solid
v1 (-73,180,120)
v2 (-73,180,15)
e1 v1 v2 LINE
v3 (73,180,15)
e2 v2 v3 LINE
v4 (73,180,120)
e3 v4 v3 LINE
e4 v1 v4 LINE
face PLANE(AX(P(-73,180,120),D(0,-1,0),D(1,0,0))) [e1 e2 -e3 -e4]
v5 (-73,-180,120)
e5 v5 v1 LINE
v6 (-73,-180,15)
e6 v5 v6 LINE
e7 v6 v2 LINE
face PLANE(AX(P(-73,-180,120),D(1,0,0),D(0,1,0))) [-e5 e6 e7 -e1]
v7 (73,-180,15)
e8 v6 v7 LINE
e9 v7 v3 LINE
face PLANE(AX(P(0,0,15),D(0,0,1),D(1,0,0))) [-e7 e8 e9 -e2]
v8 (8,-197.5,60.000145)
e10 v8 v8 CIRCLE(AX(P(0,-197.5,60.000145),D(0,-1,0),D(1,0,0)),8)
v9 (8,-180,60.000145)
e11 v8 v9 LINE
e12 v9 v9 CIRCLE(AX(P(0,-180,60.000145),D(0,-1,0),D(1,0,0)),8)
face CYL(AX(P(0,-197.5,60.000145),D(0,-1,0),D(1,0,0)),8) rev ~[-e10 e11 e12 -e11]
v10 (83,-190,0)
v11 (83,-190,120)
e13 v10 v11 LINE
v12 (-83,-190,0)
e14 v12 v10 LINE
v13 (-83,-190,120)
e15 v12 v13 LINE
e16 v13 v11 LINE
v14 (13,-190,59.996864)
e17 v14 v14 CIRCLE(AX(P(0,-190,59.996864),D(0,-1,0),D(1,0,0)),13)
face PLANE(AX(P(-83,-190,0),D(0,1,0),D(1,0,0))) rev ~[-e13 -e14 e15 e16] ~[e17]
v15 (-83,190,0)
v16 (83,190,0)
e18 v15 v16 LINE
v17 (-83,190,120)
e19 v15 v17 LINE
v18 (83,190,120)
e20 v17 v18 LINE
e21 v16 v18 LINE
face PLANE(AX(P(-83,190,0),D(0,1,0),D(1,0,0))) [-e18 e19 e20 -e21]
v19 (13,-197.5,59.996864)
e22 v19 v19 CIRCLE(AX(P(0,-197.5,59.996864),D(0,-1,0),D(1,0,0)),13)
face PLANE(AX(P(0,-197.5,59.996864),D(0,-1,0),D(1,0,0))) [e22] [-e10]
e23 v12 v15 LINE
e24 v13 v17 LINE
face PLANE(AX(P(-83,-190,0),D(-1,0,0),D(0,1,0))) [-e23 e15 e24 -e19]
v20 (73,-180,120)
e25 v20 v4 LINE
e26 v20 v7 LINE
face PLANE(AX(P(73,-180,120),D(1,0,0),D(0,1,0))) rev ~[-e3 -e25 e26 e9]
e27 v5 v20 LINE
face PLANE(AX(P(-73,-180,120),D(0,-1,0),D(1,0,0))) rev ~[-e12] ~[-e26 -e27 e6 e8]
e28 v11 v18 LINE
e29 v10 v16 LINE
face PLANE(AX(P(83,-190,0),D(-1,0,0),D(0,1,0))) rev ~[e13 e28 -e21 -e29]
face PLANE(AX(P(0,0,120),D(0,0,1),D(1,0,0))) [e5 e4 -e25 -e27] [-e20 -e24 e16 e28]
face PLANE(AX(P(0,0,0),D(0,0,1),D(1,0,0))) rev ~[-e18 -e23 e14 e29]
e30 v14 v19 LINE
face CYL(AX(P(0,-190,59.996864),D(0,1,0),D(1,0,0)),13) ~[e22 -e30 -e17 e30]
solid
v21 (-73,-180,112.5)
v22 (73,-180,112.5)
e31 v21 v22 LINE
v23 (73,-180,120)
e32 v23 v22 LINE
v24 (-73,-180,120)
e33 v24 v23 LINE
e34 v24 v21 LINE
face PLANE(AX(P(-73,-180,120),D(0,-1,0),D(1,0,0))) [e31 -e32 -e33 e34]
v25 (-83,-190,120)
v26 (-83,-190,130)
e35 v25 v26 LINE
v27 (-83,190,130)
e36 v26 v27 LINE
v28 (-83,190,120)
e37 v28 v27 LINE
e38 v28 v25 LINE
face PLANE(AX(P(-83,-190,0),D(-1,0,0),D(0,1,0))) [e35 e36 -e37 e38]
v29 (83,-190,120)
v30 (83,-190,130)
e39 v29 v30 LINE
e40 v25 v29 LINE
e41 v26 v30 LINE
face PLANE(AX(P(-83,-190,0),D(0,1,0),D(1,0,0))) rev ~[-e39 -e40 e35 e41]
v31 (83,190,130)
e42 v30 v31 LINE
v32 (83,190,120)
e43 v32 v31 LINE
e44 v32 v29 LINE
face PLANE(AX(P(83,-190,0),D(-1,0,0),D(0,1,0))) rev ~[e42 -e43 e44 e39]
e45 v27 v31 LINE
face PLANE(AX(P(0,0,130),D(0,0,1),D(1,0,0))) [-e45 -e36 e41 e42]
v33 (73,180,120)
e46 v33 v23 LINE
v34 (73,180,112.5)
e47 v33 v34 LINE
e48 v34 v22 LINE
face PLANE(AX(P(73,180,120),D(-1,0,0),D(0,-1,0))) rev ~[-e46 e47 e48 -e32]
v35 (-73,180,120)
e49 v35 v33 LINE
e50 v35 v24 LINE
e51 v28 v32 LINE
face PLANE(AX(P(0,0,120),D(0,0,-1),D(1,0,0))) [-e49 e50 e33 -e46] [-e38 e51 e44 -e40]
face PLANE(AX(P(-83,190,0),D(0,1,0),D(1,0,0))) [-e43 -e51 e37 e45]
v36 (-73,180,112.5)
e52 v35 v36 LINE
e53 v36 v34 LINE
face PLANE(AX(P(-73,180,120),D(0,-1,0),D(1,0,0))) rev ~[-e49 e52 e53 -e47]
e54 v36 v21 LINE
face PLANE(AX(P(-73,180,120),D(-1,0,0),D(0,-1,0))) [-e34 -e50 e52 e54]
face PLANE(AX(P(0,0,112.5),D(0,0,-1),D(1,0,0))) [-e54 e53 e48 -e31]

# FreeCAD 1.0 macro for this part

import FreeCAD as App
import Part
import Sketcher

V = App.Vector


def add_polygon(sketch, points):
    """Adds a closed chain of lines whose ends are joined by coincident constraints."""
    first, n = sketch.GeometryCount, len(points)
    for a, b in zip(points, points[1:] + points[:1]):
        sketch.addGeometry(Part.LineSegment(App.Vector(*a, 0), App.Vector(*b, 0)), False)
    for i in range(n):
        sketch.addConstraint(Sketcher.Constraint("Coincident", first + i, 2, first + (i + 1) % n, 1))

doc = App.newDocument("Part")
params = doc.addObject("Spreadsheet::Sheet", "Params")
for row, (alias, value) in enumerate([
    ("sketch1_width", "166 mm"),
    ("sketch1_height", "380 mm"),
    ("pad1_length", "120 mm"),
    ("sketch2_width", "146 mm"),
    ("sketch2_height", "360 mm"),
    ("pocket1_length", "105 mm"),
    ("sketch3_diameter", "26 mm"),
    ("pad2_length", "7.5 mm"),
    ("sketch4_diameter", "16 mm"),
    ("pocket2_length", "17.5 mm"),
    ("sketch5_width", "166 mm"),
    ("sketch5_height", "380 mm"),
    ("pad3_length", "130 mm"),
    ("sketch6_width", "166 mm"),
    ("sketch6_height", "380 mm"),
    ("pocket3_length", "120 mm"),
    ("sketch7_width", "146 mm"),
    ("sketch7_height", "360 mm"),
    ("pad4_length", "7.5 mm"),
], start=1):
    params.set(f"A{row}", alias)
    params.set(f"B{row}", "=" + value)
    params.setAlias(f"B{row}", alias)

body = doc.addObject("PartDesign::Body", "Body")

# Sketch on XY plane
sketch1 = doc.addObject("Sketcher::SketchObject", "Sketch")
body.addObject(sketch1)
sketch1.AttachmentSupport = (doc.XY_Plane, [""])
sketch1.MapMode = "FlatFace"
add_polygon(sketch1, [(-83, 190), (-83, -190), (83, -190), (83, 190)])  # lines 0-3
sketch1.addConstraint([
    Sketcher.Constraint("Vertical", 0),
    Sketcher.Constraint("Horizontal", 1),
    Sketcher.Constraint("Vertical", 2),
    Sketcher.Constraint("Horizontal", 3),
    Sketcher.Constraint("Symmetric", 0, 2, 2, 2, -1, 1),
    Sketcher.Constraint("DistanceX", 1, 1, 1, 2, 166.0),
    Sketcher.Constraint("DistanceY", 0, 2, 0, 1, 380.0),
])
sketch1.setExpression("Constraints[9]", "Params.sketch1_width")
sketch1.setExpression("Constraints[10]", "Params.sketch1_height")
pad1 = doc.addObject("PartDesign::Pad", "Pad")
body.addObject(pad1)
pad1.Profile = sketch1
pad1.setExpression("Length", "Params.pad1_length")

# Sketch on XY plane
sketch2 = doc.addObject("Sketcher::SketchObject", "Sketch001")
body.addObject(sketch2)
sketch2.AttachmentSupport = (doc.XY_Plane, [""])
sketch2.MapMode = "FlatFace"
sketch2.AttachmentOffset = App.Placement(V(0, 0, 120), App.Rotation())
add_polygon(sketch2, [(-73, 180), (-73, -180), (73, -180), (73, 180)])  # lines 0-3
sketch2.addConstraint([
    Sketcher.Constraint("Vertical", 0),
    Sketcher.Constraint("Horizontal", 1),
    Sketcher.Constraint("Vertical", 2),
    Sketcher.Constraint("Horizontal", 3),
    Sketcher.Constraint("Symmetric", 0, 2, 2, 2, -1, 1),
    Sketcher.Constraint("DistanceX", 1, 1, 1, 2, 146.0),
    Sketcher.Constraint("DistanceY", 0, 2, 0, 1, 360.0),
])
sketch2.setExpression("Constraints[9]", "Params.sketch2_width")
sketch2.setExpression("Constraints[10]", "Params.sketch2_height")
pocket1 = doc.addObject("PartDesign::Pocket", "Pocket")
body.addObject(pocket1)
pocket1.Profile = sketch2
pocket1.setExpression("Length", "Params.pocket1_length")

# Sketch on XZ plane
sketch3 = doc.addObject("Sketcher::SketchObject", "Sketch002")
body.addObject(sketch3)
sketch3.AttachmentSupport = (doc.XZ_Plane, [""])
sketch3.MapMode = "FlatFace"
sketch3.AttachmentOffset = App.Placement(V(0, 0, 190), App.Rotation())
sketch3.addGeometry(Part.Circle(V(0, 59.996864, 0), V(0, 0, 1), 13), False)
sketch3.addConstraint([
    Sketcher.Constraint("PointOnObject", 0, 3, -2),
    Sketcher.Constraint("Diameter", 0, 26.0),
    Sketcher.Constraint("DistanceY", -1, 1, 0, 3, 59.996864),
])
sketch3.setExpression("Constraints[1]", "Params.sketch3_diameter")
pad2 = doc.addObject("PartDesign::Pad", "Pad001")
body.addObject(pad2)
pad2.Profile = sketch3
pad2.setExpression("Length", "Params.pad2_length")

# Sketch on XZ plane
sketch4 = doc.addObject("Sketcher::SketchObject", "Sketch003")
body.addObject(sketch4)
sketch4.AttachmentSupport = (doc.XZ_Plane, [""])
sketch4.MapMode = "FlatFace"
sketch4.AttachmentOffset = App.Placement(V(0, 0, 197.5), App.Rotation())
sketch4.addGeometry(Part.Circle(V(0, 60.000145, 0), V(0, 0, 1), 8), False)
sketch4.addConstraint([
    Sketcher.Constraint("PointOnObject", 0, 3, -2),
    Sketcher.Constraint("Diameter", 0, 16.0),
    Sketcher.Constraint("DistanceY", -1, 1, 0, 3, 60.000145),
])
sketch4.setExpression("Constraints[1]", "Params.sketch4_diameter")
pocket2 = doc.addObject("PartDesign::Pocket", "Pocket001")
body.addObject(pocket2)
pocket2.Profile = sketch4
pocket2.setExpression("Length", "Params.pocket2_length")
body2 = doc.addObject("PartDesign::Body", "Body001")

# Sketch on XY plane
sketch5 = doc.addObject("Sketcher::SketchObject", "Sketch004")
body2.addObject(sketch5)
sketch5.AttachmentSupport = (doc.getObject("XY_Plane001"), [""])
sketch5.MapMode = "FlatFace"
add_polygon(sketch5, [(-83, 190), (-83, -190), (83, -190), (83, 190)])  # lines 0-3
sketch5.addConstraint([
    Sketcher.Constraint("Vertical", 0),
    Sketcher.Constraint("Horizontal", 1),
    Sketcher.Constraint("Vertical", 2),
    Sketcher.Constraint("Horizontal", 3),
    Sketcher.Constraint("Symmetric", 0, 2, 2, 2, -1, 1),
    Sketcher.Constraint("DistanceX", 1, 1, 1, 2, 166.0),
    Sketcher.Constraint("DistanceY", 0, 2, 0, 1, 380.0),
])
sketch5.setExpression("Constraints[9]", "Params.sketch5_width")
sketch5.setExpression("Constraints[10]", "Params.sketch5_height")
pad3 = doc.addObject("PartDesign::Pad", "Pad002")
body2.addObject(pad3)
pad3.Profile = sketch5
pad3.setExpression("Length", "Params.pad3_length")

# Sketch on XY plane
sketch6 = doc.addObject("Sketcher::SketchObject", "Sketch005")
body2.addObject(sketch6)
sketch6.AttachmentSupport = (doc.getObject("XY_Plane001"), [""])
sketch6.MapMode = "FlatFace"
add_polygon(sketch6, [(-83, -190), (-83, 190), (83, 190), (83, -190)])  # lines 0-3
sketch6.addConstraint([
    Sketcher.Constraint("Vertical", 0),
    Sketcher.Constraint("Horizontal", 1),
    Sketcher.Constraint("Vertical", 2),
    Sketcher.Constraint("Horizontal", 3),
    Sketcher.Constraint("Symmetric", 0, 2, 2, 2, -1, 1),
    Sketcher.Constraint("DistanceX", 1, 1, 1, 2, 166.0),
    Sketcher.Constraint("DistanceY", 0, 1, 0, 2, 380.0),
])
sketch6.setExpression("Constraints[9]", "Params.sketch6_width")
sketch6.setExpression("Constraints[10]", "Params.sketch6_height")
pocket3 = doc.addObject("PartDesign::Pocket", "Pocket002")
body2.addObject(pocket3)
pocket3.Profile = sketch6
pocket3.setExpression("Length", "Params.pocket3_length")
pocket3.Reversed = True

# Sketch on XY plane
sketch7 = doc.addObject("Sketcher::SketchObject", "Sketch006")
body2.addObject(sketch7)
sketch7.AttachmentSupport = (doc.getObject("XY_Plane001"), [""])
sketch7.MapMode = "FlatFace"
sketch7.AttachmentOffset = App.Placement(V(0, 0, 120), App.Rotation())
add_polygon(sketch7, [(-73, -180), (-73, 180), (73, 180), (73, -180)])  # lines 0-3
sketch7.addConstraint([
    Sketcher.Constraint("Vertical", 0),
    Sketcher.Constraint("Horizontal", 1),
    Sketcher.Constraint("Vertical", 2),
    Sketcher.Constraint("Horizontal", 3),
    Sketcher.Constraint("Symmetric", 0, 2, 2, 2, -1, 1),
    Sketcher.Constraint("DistanceX", 1, 1, 1, 2, 146.0),
    Sketcher.Constraint("DistanceY", 0, 1, 0, 2, 360.0),
])
sketch7.setExpression("Constraints[9]", "Params.sketch7_width")
sketch7.setExpression("Constraints[10]", "Params.sketch7_height")
pad4 = doc.addObject("PartDesign::Pad", "Pad003")
body2.addObject(pad4)
pad4.Profile = sketch7
pad4.setExpression("Length", "Params.pad4_length")
pad4.Reversed = True

doc.recompute()
